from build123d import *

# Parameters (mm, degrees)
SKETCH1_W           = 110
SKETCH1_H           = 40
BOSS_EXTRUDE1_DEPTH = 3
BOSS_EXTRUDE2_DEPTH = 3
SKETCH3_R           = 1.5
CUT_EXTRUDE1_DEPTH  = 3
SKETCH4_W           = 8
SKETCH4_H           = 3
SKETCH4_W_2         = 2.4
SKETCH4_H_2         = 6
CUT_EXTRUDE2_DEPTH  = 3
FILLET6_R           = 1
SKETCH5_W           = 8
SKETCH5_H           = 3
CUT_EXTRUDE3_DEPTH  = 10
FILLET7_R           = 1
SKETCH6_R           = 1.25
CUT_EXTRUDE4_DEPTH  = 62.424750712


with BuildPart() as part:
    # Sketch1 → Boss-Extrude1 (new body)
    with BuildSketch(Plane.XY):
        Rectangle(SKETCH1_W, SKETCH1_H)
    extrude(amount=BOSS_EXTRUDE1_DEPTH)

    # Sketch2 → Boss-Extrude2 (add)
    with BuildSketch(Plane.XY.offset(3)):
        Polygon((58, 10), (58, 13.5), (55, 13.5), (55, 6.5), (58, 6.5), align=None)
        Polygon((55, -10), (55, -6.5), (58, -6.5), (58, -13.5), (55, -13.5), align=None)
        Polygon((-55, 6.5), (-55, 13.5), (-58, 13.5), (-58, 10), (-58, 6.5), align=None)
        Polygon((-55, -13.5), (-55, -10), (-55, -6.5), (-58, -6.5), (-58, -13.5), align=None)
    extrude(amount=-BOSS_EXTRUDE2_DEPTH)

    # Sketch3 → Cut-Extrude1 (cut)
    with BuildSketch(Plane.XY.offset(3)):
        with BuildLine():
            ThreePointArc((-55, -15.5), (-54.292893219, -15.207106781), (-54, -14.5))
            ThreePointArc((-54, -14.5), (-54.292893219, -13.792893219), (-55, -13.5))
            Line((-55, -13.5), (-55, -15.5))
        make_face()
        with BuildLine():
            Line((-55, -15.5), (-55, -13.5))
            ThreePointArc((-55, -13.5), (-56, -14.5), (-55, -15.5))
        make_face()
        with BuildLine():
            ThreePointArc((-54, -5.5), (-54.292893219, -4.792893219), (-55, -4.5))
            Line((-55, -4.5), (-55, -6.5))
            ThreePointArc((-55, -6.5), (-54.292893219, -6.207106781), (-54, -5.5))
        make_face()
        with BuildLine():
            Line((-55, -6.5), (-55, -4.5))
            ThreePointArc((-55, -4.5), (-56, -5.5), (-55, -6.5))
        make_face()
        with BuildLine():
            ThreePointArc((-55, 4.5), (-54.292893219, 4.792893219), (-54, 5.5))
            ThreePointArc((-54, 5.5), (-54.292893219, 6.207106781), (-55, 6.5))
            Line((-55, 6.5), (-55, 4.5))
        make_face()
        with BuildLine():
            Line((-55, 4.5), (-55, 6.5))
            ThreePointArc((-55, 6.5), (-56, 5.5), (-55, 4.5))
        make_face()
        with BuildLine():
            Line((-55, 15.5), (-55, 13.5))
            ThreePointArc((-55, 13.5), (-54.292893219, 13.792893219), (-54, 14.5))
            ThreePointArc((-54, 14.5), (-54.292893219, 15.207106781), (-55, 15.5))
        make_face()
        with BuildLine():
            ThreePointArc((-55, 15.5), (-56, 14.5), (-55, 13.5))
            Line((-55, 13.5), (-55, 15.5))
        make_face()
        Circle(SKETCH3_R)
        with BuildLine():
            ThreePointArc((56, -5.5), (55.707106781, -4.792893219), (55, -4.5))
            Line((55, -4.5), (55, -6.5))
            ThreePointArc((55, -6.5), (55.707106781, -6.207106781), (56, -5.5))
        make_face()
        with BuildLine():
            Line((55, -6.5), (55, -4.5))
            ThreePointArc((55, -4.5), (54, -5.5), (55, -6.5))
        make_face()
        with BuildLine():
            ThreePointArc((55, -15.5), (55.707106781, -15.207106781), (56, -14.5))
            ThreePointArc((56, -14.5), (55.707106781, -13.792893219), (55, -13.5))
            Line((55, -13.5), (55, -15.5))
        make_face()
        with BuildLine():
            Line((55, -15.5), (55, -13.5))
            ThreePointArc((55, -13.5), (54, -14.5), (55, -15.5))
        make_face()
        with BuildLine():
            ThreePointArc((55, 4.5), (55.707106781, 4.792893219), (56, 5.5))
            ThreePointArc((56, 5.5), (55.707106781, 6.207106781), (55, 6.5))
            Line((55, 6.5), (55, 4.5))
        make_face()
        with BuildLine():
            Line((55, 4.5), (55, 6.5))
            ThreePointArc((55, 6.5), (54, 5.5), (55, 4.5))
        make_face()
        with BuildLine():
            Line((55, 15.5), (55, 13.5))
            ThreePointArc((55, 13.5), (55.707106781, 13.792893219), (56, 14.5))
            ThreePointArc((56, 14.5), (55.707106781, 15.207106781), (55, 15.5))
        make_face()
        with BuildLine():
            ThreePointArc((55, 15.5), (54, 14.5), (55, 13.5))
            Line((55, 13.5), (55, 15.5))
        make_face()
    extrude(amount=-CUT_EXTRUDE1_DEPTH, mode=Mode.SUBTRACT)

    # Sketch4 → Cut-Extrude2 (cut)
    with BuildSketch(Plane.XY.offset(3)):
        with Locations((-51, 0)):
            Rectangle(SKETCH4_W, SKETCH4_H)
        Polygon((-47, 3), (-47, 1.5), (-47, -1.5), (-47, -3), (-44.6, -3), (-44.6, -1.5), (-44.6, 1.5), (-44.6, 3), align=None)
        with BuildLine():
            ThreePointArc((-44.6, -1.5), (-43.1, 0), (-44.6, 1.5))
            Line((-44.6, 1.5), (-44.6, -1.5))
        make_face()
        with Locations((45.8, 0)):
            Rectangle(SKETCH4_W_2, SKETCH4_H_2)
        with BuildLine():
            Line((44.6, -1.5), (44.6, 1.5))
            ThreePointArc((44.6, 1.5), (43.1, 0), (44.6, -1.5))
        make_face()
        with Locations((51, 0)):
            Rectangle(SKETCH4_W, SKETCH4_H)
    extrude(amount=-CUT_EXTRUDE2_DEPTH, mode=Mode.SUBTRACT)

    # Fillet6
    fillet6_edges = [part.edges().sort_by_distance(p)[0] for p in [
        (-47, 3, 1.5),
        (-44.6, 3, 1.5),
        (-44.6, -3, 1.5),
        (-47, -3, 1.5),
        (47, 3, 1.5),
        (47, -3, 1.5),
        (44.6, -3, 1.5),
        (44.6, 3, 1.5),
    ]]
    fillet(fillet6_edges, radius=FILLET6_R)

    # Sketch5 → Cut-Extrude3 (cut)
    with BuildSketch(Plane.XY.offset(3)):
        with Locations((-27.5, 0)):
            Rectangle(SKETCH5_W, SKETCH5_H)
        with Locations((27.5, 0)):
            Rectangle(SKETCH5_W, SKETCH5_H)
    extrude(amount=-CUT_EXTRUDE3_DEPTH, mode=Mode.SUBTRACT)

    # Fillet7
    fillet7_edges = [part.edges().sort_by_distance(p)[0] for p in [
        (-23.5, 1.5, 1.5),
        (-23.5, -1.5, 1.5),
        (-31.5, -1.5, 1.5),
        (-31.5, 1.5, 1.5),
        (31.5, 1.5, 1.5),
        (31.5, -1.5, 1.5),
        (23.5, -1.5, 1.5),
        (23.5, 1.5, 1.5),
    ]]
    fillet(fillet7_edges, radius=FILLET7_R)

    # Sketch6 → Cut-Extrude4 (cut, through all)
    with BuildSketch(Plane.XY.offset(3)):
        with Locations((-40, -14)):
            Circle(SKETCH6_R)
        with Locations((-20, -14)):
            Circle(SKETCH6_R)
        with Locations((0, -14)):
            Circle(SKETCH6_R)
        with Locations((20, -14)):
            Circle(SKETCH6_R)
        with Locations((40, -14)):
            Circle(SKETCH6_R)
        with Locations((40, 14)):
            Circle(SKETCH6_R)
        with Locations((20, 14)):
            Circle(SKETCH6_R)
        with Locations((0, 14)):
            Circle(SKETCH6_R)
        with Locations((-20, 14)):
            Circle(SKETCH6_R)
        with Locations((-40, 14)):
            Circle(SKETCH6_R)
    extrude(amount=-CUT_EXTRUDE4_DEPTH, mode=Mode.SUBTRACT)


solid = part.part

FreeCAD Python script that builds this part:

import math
import FreeCAD as App
import Part
import Sketcher
from FreeCAD import Vector
Q = App.Units.Quantity


def edges_at(feature, points):
    """Names of the edges that pass closest to the given points."""
    edges = feature.Shape.Edges
    near = lambda p: min(range(len(edges)), key=lambda i: edges[i].distToShape(Part.Vertex(*p))[0])
    return sorted({f"Edge{near(p) + 1}" for p in points})

doc = App.newDocument("Part")
params = doc.addObject("Spreadsheet::Sheet", "Params")
for row, (alias, value) in enumerate([
    ("sketch1_width", "110 mm"),
    ("sketch1_height", "40 mm"),
    ("pad1_length", "3 mm"),
    ("sketch2_width", "3 mm"),
    ("sketch2_height", "7 mm"),
    ("pad2_length", "3 mm"),
    ("sketch3_diameter", "3 mm"),
    ("sketch3_radius", "1 mm"),
    ("pocket1_length", "3 mm"),
    ("sketch4_radius", "1.5 mm"),
    ("sketch4_width", "8 mm"),
    ("sketch4_width2", "2.4 mm"),
    ("sketch4_height", "1.5 mm"),
    ("pocket2_length", "3 mm"),
    ("fillet_radius", "1 mm"),
    ("sketch5_width", "8 mm"),
    ("sketch5_height", "3 mm"),
    ("pocket3_length", "10 mm"),
    ("fillet2_radius", "1 mm"),
    ("sketch6_diameter", "2.5 mm"),
], start=1):
    params.set(f"A{row}", alias)
    params.set(f"B{row}", "=" + value)
    params.setAlias(f"B{row}", alias)

body = doc.addObject("PartDesign::Body", "Body")

sketch1 = body.newObject("Sketcher::SketchObject", "Sketch")
sketch1.AttachmentSupport = (doc.getObject("XY_Plane"), [""])
sketch1.MapMode = "FlatFace"
sketch1.addGeometry(Part.LineSegment(Vector(-55, 20, 0), Vector(-55, -20, 0)), False)
sketch1.addGeometry(Part.LineSegment(Vector(-55, -20, 0), Vector(55, -20, 0)), False)
sketch1.addGeometry(Part.LineSegment(Vector(55, -20, 0), Vector(55, 20, 0)), False)
sketch1.addGeometry(Part.LineSegment(Vector(55, 20, 0), Vector(-55, 20, 0)), False)
sketch1.addConstraint(Sketcher.Constraint("Coincident", 0, 2, 1, 1))
sketch1.addConstraint(Sketcher.Constraint("Coincident", 1, 2, 2, 1))
sketch1.addConstraint(Sketcher.Constraint("Coincident", 2, 2, 3, 1))
sketch1.addConstraint(Sketcher.Constraint("Coincident", 3, 2, 0, 1))
sketch1.addConstraint(Sketcher.Constraint("Vertical", 0))
sketch1.addConstraint(Sketcher.Constraint("Horizontal", 1))
sketch1.addConstraint(Sketcher.Constraint("Vertical", 2))
sketch1.addConstraint(Sketcher.Constraint("Horizontal", 3))
sketch1.addConstraint(Sketcher.Constraint("Symmetric", 0, 2, 2, 2, -1, 1))
sketch1.addConstraint(Sketcher.Constraint("DistanceX", 1, 1, 1, 2, Q("110 mm")))
sketch1.addConstraint(Sketcher.Constraint("DistanceY", 0, 2, 0, 1, Q("40 mm")))
sketch1.setExpression("Constraints[9]", "Params.sketch1_width")
sketch1.setExpression("Constraints[10]", "Params.sketch1_height")
pad1 = body.newObject("PartDesign::Pad", "Pad")
pad1.Profile = sketch1
pad1.setExpression("Length", "Params.pad1_length")

sketch2 = body.newObject("Sketcher::SketchObject", "Sketch001")
sketch2.AttachmentSupport = (doc.getObject("XY_Plane"), [""])
sketch2.MapMode = "FlatFace"
sketch2.AttachmentOffset = App.Placement(Vector(0, 0, 3), App.Rotation())
sketch2.addGeometry(Part.LineSegment(Vector(58, 13.5, 0), Vector(55, 13.5, 0)), False)
sketch2.addGeometry(Part.LineSegment(Vector(55, 13.5, 0), Vector(55, 6.5, 0)), False)
sketch2.addGeometry(Part.LineSegment(Vector(55, 6.5, 0), Vector(58, 6.5, 0)), False)
sketch2.addGeometry(Part.LineSegment(Vector(58, 6.5, 0), Vector(58, 13.5, 0)), False)
sketch2.addGeometry(Part.LineSegment(Vector(55, -6.5, 0), Vector(55, -13.5, 0)), False)
sketch2.addGeometry(Part.LineSegment(Vector(55, -13.5, 0), Vector(58, -13.5, 0)), False)
sketch2.addGeometry(Part.LineSegment(Vector(58, -13.5, 0), Vector(58, -6.5, 0)), False)
sketch2.addGeometry(Part.LineSegment(Vector(58, -6.5, 0), Vector(55, -6.5, 0)), False)
sketch2.addGeometry(Part.LineSegment(Vector(-55, 6.5, 0), Vector(-55, 13.5, 0)), False)
sketch2.addGeometry(Part.LineSegment(Vector(-55, 13.5, 0), Vector(-58, 13.5, 0)), False)
sketch2.addGeometry(Part.LineSegment(Vector(-58, 13.5, 0), Vector(-58, 6.5, 0)), False)
sketch2.addGeometry(Part.LineSegment(Vector(-58, 6.5, 0), Vector(-55, 6.5, 0)), False)
sketch2.addGeometry(Part.LineSegment(Vector(-55, -13.5, 0), Vector(-55, -6.5, 0)), False)
sketch2.addGeometry(Part.LineSegment(Vector(-55, -6.5, 0), Vector(-58, -6.5, 0)), False)
sketch2.addGeometry(Part.LineSegment(Vector(-58, -6.5, 0), Vector(-58, -13.5, 0)), False)
sketch2.addGeometry(Part.LineSegment(Vector(-58, -13.5, 0), Vector(-55, -13.5, 0)), False)
sketch2.addConstraint(Sketcher.Constraint("Coincident", 0, 2, 1, 1))
sketch2.addConstraint(Sketcher.Constraint("Coincident", 1, 2, 2, 1))
sketch2.addConstraint(Sketcher.Constraint("Coincident", 2, 2, 3, 1))
sketch2.addConstraint(Sketcher.Constraint("Coincident", 3, 2, 0, 1))
sketch2.addConstraint(Sketcher.Constraint("Coincident", 4, 2, 5, 1))
sketch2.addConstraint(Sketcher.Constraint("Coincident", 5, 2, 6, 1))
sketch2.addConstraint(Sketcher.Constraint("Coincident", 6, 2, 7, 1))
sketch2.addConstraint(Sketcher.Constraint("Coincident", 7, 2, 4, 1))
sketch2.addConstraint(Sketcher.Constraint("Coincident", 8, 2, 9, 1))
sketch2.addConstraint(Sketcher.Constraint("Coincident", 9, 2, 10, 1))
sketch2.addConstraint(Sketcher.Constraint("Coincident", 10, 2, 11, 1))
sketch2.addConstraint(Sketcher.Constraint("Coincident", 11, 2, 8, 1))
sketch2.addConstraint(Sketcher.Constraint("Coincident", 12, 2, 13, 1))
sketch2.addConstraint(Sketcher.Constraint("Coincident", 13, 2, 14, 1))
sketch2.addConstraint(Sketcher.Constraint("Coincident", 14, 2, 15, 1))
sketch2.addConstraint(Sketcher.Constraint("Coincident", 15, 2, 12, 1))
sketch2.addConstraint(Sketcher.Constraint("Horizontal", 0))
sketch2.addConstraint(Sketcher.Constraint("Vertical", 1))
sketch2.addConstraint(Sketcher.Constraint("Horizontal", 2))
sketch2.addConstraint(Sketcher.Constraint("Vertical", 3))
sketch2.addConstraint(Sketcher.Constraint("Vertical", 4))
sketch2.addConstraint(Sketcher.Constraint("Horizontal", 5))
sketch2.addConstraint(Sketcher.Constraint("Vertical", 6))
sketch2.addConstraint(Sketcher.Constraint("Horizontal", 7))
sketch2.addConstraint(Sketcher.Constraint("Vertical", 8))
sketch2.addConstraint(Sketcher.Constraint("Horizontal", 9))
sketch2.addConstraint(Sketcher.Constraint("Vertical", 10))
sketch2.addConstraint(Sketcher.Constraint("Horizontal", 11))
sketch2.addConstraint(Sketcher.Constraint("Vertical", 12))
sketch2.addConstraint(Sketcher.Constraint("Horizontal", 13))
sketch2.addConstraint(Sketcher.Constraint("Vertical", 14))
sketch2.addConstraint(Sketcher.Constraint("Horizontal", 15))
sketch2.addConstraint(Sketcher.Constraint("Symmetric", 4, 2, 8, 2, -1, 1))
sketch2.addConstraint(Sketcher.Constraint("Symmetric", 6, 2, 10, 2, -1, 1))
sketch2.addConstraint(Sketcher.Constraint("Symmetric", 1, 2, 12, 2, -1, 1))
sketch2.addConstraint(Sketcher.Constraint("Symmetric", 3, 2, 14, 2, -1, 1))
sketch2.addConstraint(Sketcher.Constraint("Symmetric", 0, 2, 8, 2, -2))
sketch2.addConstraint(Sketcher.Constraint("Symmetric", 2, 2, 10, 2, -2))
sketch2.addConstraint(Sketcher.Constraint("DistanceX", 0, 2, 0, 1, Q("3 mm")))
sketch2.addConstraint(Sketcher.Constraint("DistanceY", 1, 2, 1, 1, Q("7 mm")))
sketch2.addConstraint(Sketcher.Constraint("DistanceX", -1, 1, 0, 2, Q("55 mm")))
sketch2.addConstraint(Sketcher.Constraint("DistanceY", 4, 2, 1, 2, Q("20 mm")))
sketch2.setExpression("Constraints[38]", "Params.sketch2_width")
sketch2.setExpression("Constraints[39]", "Params.sketch2_height")
pad2 = body.newObject("PartDesign::Pad", "Pad001")
pad2.Profile = sketch2
pad2.setExpression("Length", "Params.pad2_length")
pad2.Reversed = True

sketch3 = body.newObject("Sketcher::SketchObject", "Sketch002")
sketch3.AttachmentSupport = (doc.getObject("XY_Plane"), [""])
sketch3.MapMode = "FlatFace"
sketch3.AttachmentOffset = App.Placement(Vector(0, 0, 3), App.Rotation())
sketch3.addGeometry(Part.ArcOfCircle(Part.Circle(Vector(-55, -14.5, 0), Vector(0, 0, 1), 1), math.radians(-90), math.radians(0)), False)
sketch3.addGeometry(Part.ArcOfCircle(Part.Circle(Vector(-55, -14.5, 0), Vector(0, 0, 1), 1), math.radians(0), math.radians(90)), False)
sketch3.addGeometry(Part.ArcOfCircle(Part.Circle(Vector(-55, -14.5, 0), Vector(0, 0, 1), 1), math.radians(90), math.radians(270)), False)
sketch3.addGeometry(Part.ArcOfCircle(Part.Circle(Vector(-55, -5.5, 0), Vector(0, 0, 1), 1), math.radians(0), math.radians(90)), False)
sketch3.addGeometry(Part.ArcOfCircle(Part.Circle(Vector(-55, -5.5, 0), Vector(0, 0, 1), 1), math.radians(90), math.radians(270)), False)
sketch3.addGeometry(Part.ArcOfCircle(Part.Circle(Vector(-55, -5.5, 0), Vector(0, 0, 1), 1), math.radians(-90), math.radians(0)), False)
sketch3.addGeometry(Part.ArcOfCircle(Part.Circle(Vector(-55, 5.5, 0), Vector(0, 0, 1), 1), math.radians(-90), math.radians(0)), False)
sketch3.addGeometry(Part.ArcOfCircle(Part.Circle(Vector(-55, 5.5, 0), Vector(0, 0, 1), 1), math.radians(0), math.radians(90)), False)
sketch3.addGeometry(Part.ArcOfCircle(Part.Circle(Vector(-55, 5.5, 0), Vector(0, 0, 1), 1), math.radians(90), math.radians(270)), False)
sketch3.addGeometry(Part.ArcOfCircle(Part.Circle(Vector(-55, 14.5, 0), Vector(0, 0, 1), 1), math.radians(-90), math.radians(0)), False)
sketch3.addGeometry(Part.ArcOfCircle(Part.Circle(Vector(-55, 14.5, 0), Vector(0, 0, 1), 1), math.radians(0), math.radians(90)), False)
sketch3.addGeometry(Part.ArcOfCircle(Part.Circle(Vector(-55, 14.5, 0), Vector(0, 0, 1), 1), math.radians(90), math.radians(270)), False)
sketch3.addGeometry(Part.Circle(Vector(0, 0, 0), Vector(0, 0, 1), 1.5), False)
sketch3.addGeometry(Part.ArcOfCircle(Part.Circle(Vector(55, -5.5, 0), Vector(0, 0, 1), 1), math.radians(0), math.radians(90)), False)
sketch3.addGeometry(Part.ArcOfCircle(Part.Circle(Vector(55, -5.5, 0), Vector(0, 0, 1), 1), math.radians(90), math.radians(270)), False)
sketch3.addGeometry(Part.ArcOfCircle(Part.Circle(Vector(55, -5.5, 0), Vector(0, 0, 1), 1), math.radians(-90), math.radians(0)), False)
sketch3.addGeometry(Part.ArcOfCircle(Part.Circle(Vector(55, -14.5, 0), Vector(0, 0, 1), 1), math.radians(-90), math.radians(0)), False)
sketch3.addGeometry(Part.ArcOfCircle(Part.Circle(Vector(55, -14.5, 0), Vector(0, 0, 1), 1), math.radians(0), math.radians(90)), False)
sketch3.addGeometry(Part.ArcOfCircle(Part.Circle(Vector(55, -14.5, 0), Vector(0, 0, 1), 1), math.radians(90), math.radians(270)), False)
sketch3.addGeometry(Part.ArcOfCircle(Part.Circle(Vector(55, 5.5, 0), Vector(0, 0, 1), 1), math.radians(-90), math.radians(0)), False)
sketch3.addGeometry(Part.ArcOfCircle(Part.Circle(Vector(55, 5.5, 0), Vector(0, 0, 1), 1), math.radians(0), math.radians(90)), False)
sketch3.addGeometry(Part.ArcOfCircle(Part.Circle(Vector(55, 5.5, 0), Vector(0, 0, 1), 1), math.radians(90), math.radians(270)), False)
sketch3.addGeometry(Part.ArcOfCircle(Part.Circle(Vector(55, 14.5, 0), Vector(0, 0, 1), 1), math.radians(-90), math.radians(0)), False)
sketch3.addGeometry(Part.ArcOfCircle(Part.Circle(Vector(55, 14.5, 0), Vector(0, 0, 1), 1), math.radians(0), math.radians(90)), False)
sketch3.addGeometry(Part.ArcOfCircle(Part.Circle(Vector(55, 14.5, 0), Vector(0, 0, 1), 1), math.radians(90), math.radians(270)), False)
sketch3.addConstraint(Sketcher.Constraint("Tangent", 0, 2, 1, 1))
sketch3.addConstraint(Sketcher.Constraint("Tangent", 1, 2, 2, 1))
sketch3.addConstraint(Sketcher.Constraint("Tangent", 2, 2, 0, 1))
sketch3.addConstraint(Sketcher.Constraint("Tangent", 3, 2, 4, 1))
sketch3.addConstraint(Sketcher.Constraint("Tangent", 4, 2, 5, 1))
sketch3.addConstraint(Sketcher.Constraint("Tangent", 5, 2, 3, 1))
sketch3.addConstraint(Sketcher.Constraint("Tangent", 6, 2, 7, 1))
sketch3.addConstraint(Sketcher.Constraint("Tangent", 7, 2, 8, 1))
sketch3.addConstraint(Sketcher.Constraint("Tangent", 8, 2, 6, 1))
sketch3.addConstraint(Sketcher.Constraint("Tangent", 9, 2, 10, 1))
sketch3.addConstraint(Sketcher.Constraint("Tangent", 10, 2, 11, 1))
sketch3.addConstraint(Sketcher.Constraint("Tangent", 11, 2, 9, 1))
sketch3.addConstraint(Sketcher.Constraint("Tangent", 13, 2, 14, 1))
sketch3.addConstraint(Sketcher.Constraint("Tangent", 14, 2, 15, 1))
sketch3.addConstraint(Sketcher.Constraint("Tangent", 15, 2, 13, 1))
sketch3.addConstraint(Sketcher.Constraint("Tangent", 16, 2, 17, 1))
sketch3.addConstraint(Sketcher.Constraint("Tangent", 17, 2, 18, 1))
sketch3.addConstraint(Sketcher.Constraint("Tangent", 18, 2, 16, 1))
sketch3.addConstraint(Sketcher.Constraint("Tangent", 19, 2, 20, 1))
sketch3.addConstraint(Sketcher.Constraint("Tangent", 20, 2, 21, 1))
sketch3.addConstraint(Sketcher.Constraint("Tangent", 21, 2, 19, 1))
sketch3.addConstraint(Sketcher.Constraint("Tangent", 22, 2, 23, 1))
sketch3.addConstraint(Sketcher.Constraint("Tangent", 23, 2, 24, 1))
sketch3.addConstraint(Sketcher.Constraint("Tangent", 24, 2, 22, 1))
sketch3.addConstraint(Sketcher.Constraint("Coincident", 12, 3, -1, 1))
sketch3.addConstraint(Sketcher.Constraint("Equal", 2, 3))
sketch3.addConstraint(Sketcher.Constraint("Equal", 5, 6))
sketch3.addConstraint(Sketcher.Constraint("Equal", 8, 9))
sketch3.addConstraint(Sketcher.Constraint("Equal", 11, 13))
sketch3.addConstraint(Sketcher.Constraint("Equal", 15, 16))
sketch3.addConstraint(Sketcher.Constraint("Equal", 18, 19))
sketch3.addConstraint(Sketcher.Constraint("Equal", 21, 22))
sketch3.addConstraint(Sketcher.Constraint("Symmetric", 6, 3, 13, 3, -1, 1))
sketch3.addConstraint(Sketcher.Constraint("Symmetric", 9, 3, 16, 3, -1, 1))
sketch3.addConstraint(Sketcher.Constraint("Symmetric", 3, 3, 19, 3, -1, 1))
sketch3.addConstraint(Sketcher.Constraint("Symmetric", 0, 3, 22, 3, -1, 1))
sketch3.addConstraint(Sketcher.Constraint("Symmetric", 3, 3, 13, 3, -2))
sketch3.addConstraint(Sketcher.Constraint("Symmetric", 0, 3, 16, 3, -2))
sketch3.addConstraint(Sketcher.Constraint("Horizontal", 18, 3, 0, 2))
sketch3.addConstraint(Sketcher.Constraint("Horizontal", 15, 3, 5, 2))
sketch3.addConstraint(Sketcher.Constraint("Horizontal", 21, 3, 6, 2))
sketch3.addConstraint(Sketcher.Constraint("Horizontal", 24, 3, 9, 2))
sketch3.addConstraint(Sketcher.Constraint("Horizontal", 5, 2, 15, 2))
sketch3.addConstraint(Sketcher.Constraint("Horizontal", 0, 2, 16, 2))
sketch3.addConstraint(Sketcher.Constraint("Horizontal", 6, 2, 19, 2))
sketch3.addConstraint(Sketcher.Constraint("Horizontal", 9, 2, 22, 2))
sketch3.addConstraint(Sketcher.Constraint("Vertical", 2, 3, 3, 3))
sketch3.addConstraint(Sketcher.Constraint("Vertical", 11, 3, 1, 2))
sketch3.addConstraint(Sketcher.Constraint("Vertical", 1, 2, 2, 2))
sketch3.addConstraint(Sketcher.Constraint("Vertical", 2, 2, 3, 2))
sketch3.addConstraint(Sketcher.Constraint("Vertical", 3, 2, 4, 2))
sketch3.addConstraint(Sketcher.Constraint("Vertical", 4, 2, 7, 2))
sketch3.addConstraint(Sketcher.Constraint("Vertical", 7, 2, 8, 2))
sketch3.addConstraint(Sketcher.Constraint("Vertical", 8, 2, 10, 2))
sketch3.addConstraint(Sketcher.Constraint("Vertical", 10, 2, 11, 2))
sketch3.addConstraint(Sketcher.Constraint("Vertical", 24, 3, 13, 2))
sketch3.addConstraint(Sketcher.Constraint("Vertical", 13, 2, 14, 2))
sketch3.addConstraint(Sketcher.Constraint("Vertical", 14, 2, 17, 2))
sketch3.addConstraint(Sketcher.Constraint("Vertical", 17, 2, 18, 2))
sketch3.addConstraint(Sketcher.Constraint("Vertical", 18, 2, 20, 2))
sketch3.addConstraint(Sketcher.Constraint("Vertical", 20, 2, 21, 2))
sketch3.addConstraint(Sketcher.Constraint("Vertical", 21, 2, 23, 2))
sketch3.addConstraint(Sketcher.Constraint("Vertical", 23, 2, 24, 2))
sketch3.addConstraint(Sketcher.Constraint("Diameter", 12, Q("3 mm")))
sketch3.addConstraint(Sketcher.Constraint("Radius", 0, Q("1 mm")))
sketch3.addConstraint(Sketcher.Constraint("DistanceX", 0, 3, -1, 1, Q("55 mm")))
sketch3.addConstraint(Sketcher.Constraint("DistanceY", 0, 3, 3, 3, Q("9 mm")))
sketch3.addConstraint(Sketcher.Constraint("DistanceY", 5, 3, 6, 3, Q("11 mm")))
sketch3.setExpression("Constraints[63]", "Params.sketch3_diameter")
sketch3.setExpression("Constraints[64]", "Params.sketch3_radius")
pocket1 = body.newObject("PartDesign::Pocket", "Pocket")
pocket1.Profile = sketch3
pocket1.setExpression("Length", "Params.pocket1_length")

sketch4 = body.newObject("Sketcher::SketchObject", "Sketch003")
sketch4.AttachmentSupport = (doc.getObject("XY_Plane"), [""])
sketch4.MapMode = "FlatFace"
sketch4.AttachmentOffset = App.Placement(Vector(0, 0, 3), App.Rotation())
sketch4.addGeometry(Part.LineSegment(Vector(-55, 1.5, 0), Vector(-55, -1.5, 0)), False)
sketch4.addGeometry(Part.LineSegment(Vector(-55, -1.5, 0), Vector(-47, -1.5, 0)), False)
sketch4.addGeometry(Part.LineSegment(Vector(-47, -1.5, 0), Vector(-47, -3, 0)), False)
sketch4.addGeometry(Part.LineSegment(Vector(-47, -3, 0), Vector(-44.6, -3, 0)), False)
sketch4.addGeometry(Part.LineSegment(Vector(-44.6, -3, 0), Vector(-44.6, -1.5, 0)), False)
sketch4.addGeometry(Part.ArcOfCircle(Part.Circle(Vector(-44.6, 0, 0), Vector(0, 0, 1), 1.5), math.radians(-90), math.radians(90)), False)
sketch4.addGeometry(Part.LineSegment(Vector(-44.6, 1.5, 0), Vector(-44.6, 3, 0)), False)
sketch4.addGeometry(Part.LineSegment(Vector(-44.6, 3, 0), Vector(-47, 3, 0)), False)
sketch4.addGeometry(Part.LineSegment(Vector(-47, 3, 0), Vector(-47, 1.5, 0)), False)
sketch4.addGeometry(Part.LineSegment(Vector(-47, 1.5, 0), Vector(-55, 1.5, 0)), False)
sketch4.addGeometry(Part.LineSegment(Vector(44.6, -1.5, 0), Vector(44.6, -3, 0)), False)
sketch4.addGeometry(Part.LineSegment(Vector(44.6, -3, 0), Vector(47, -3, 0)), False)
sketch4.addGeometry(Part.LineSegment(Vector(47, -3, 0), Vector(47, -1.5, 0)), False)
sketch4.addGeometry(Part.LineSegment(Vector(47, -1.5, 0), Vector(55, -1.5, 0)), False)
sketch4.addGeometry(Part.LineSegment(Vector(55, -1.5, 0), Vector(55, 1.5, 0)), False)
sketch4.addGeometry(Part.LineSegment(Vector(55, 1.5, 0), Vector(47, 1.5, 0)), False)
sketch4.addGeometry(Part.LineSegment(Vector(47, 1.5, 0), Vector(47, 3, 0)), False)
sketch4.addGeometry(Part.LineSegment(Vector(47, 3, 0), Vector(44.6, 3, 0)), False)
sketch4.addGeometry(Part.LineSegment(Vector(44.6, 3, 0), Vector(44.6, 1.5, 0)), False)
sketch4.addGeometry(Part.ArcOfCircle(Part.Circle(Vector(44.6, 0, 0), Vector(0, 0, 1), 1.5), math.radians(90), math.radians(270)), False)
sketch4.addConstraint(Sketcher.Constraint("Coincident", 0, 2, 1, 1))
sketch4.addConstraint(Sketcher.Constraint("Coincident", 1, 2, 2, 1))
sketch4.addConstraint(Sketcher.Constraint("Coincident", 2, 2, 3, 1))
sketch4.addConstraint(Sketcher.Constraint("Coincident", 3, 2, 4, 1))
sketch4.addConstraint(Sketcher.Constraint("Coincident", 4, 2, 5, 1))
sketch4.addConstraint(Sketcher.Constraint("Coincident", 5, 2, 6, 1))
sketch4.addConstraint(Sketcher.Constraint("Coincident", 6, 2, 7, 1))
sketch4.addConstraint(Sketcher.Constraint("Coincident", 7, 2, 8, 1))
sketch4.addConstraint(Sketcher.Constraint("Coincident", 8, 2, 9, 1))
sketch4.addConstraint(Sketcher.Constraint("Coincident", 9, 2, 0, 1))
sketch4.addConstraint(Sketcher.Constraint("Coincident", 10, 2, 11, 1))
sketch4.addConstraint(Sketcher.Constraint("Coincident", 11, 2, 12, 1))
sketch4.addConstraint(Sketcher.Constraint("Coincident", 12, 2, 13, 1))
sketch4.addConstraint(Sketcher.Constraint("Coincident", 13, 2, 14, 1))
sketch4.addConstraint(Sketcher.Constraint("Coincident", 14, 2, 15, 1))
sketch4.addConstraint(Sketcher.Constraint("Coincident", 15, 2, 16, 1))
sketch4.addConstraint(Sketcher.Constraint("Coincident", 16, 2, 17, 1))
sketch4.addConstraint(Sketcher.Constraint("Coincident", 17, 2, 18, 1))
sketch4.addConstraint(Sketcher.Constraint("Coincident", 18, 2, 19, 1))
sketch4.addConstraint(Sketcher.Constraint("Coincident", 19, 2, 10, 1))
sketch4.addConstraint(Sketcher.Constraint("Vertical", 0))
sketch4.addConstraint(Sketcher.Constraint("Horizontal", 1))
sketch4.addConstraint(Sketcher.Constraint("Vertical", 2))
sketch4.addConstraint(Sketcher.Constraint("Horizontal", 3))
sketch4.addConstraint(Sketcher.Constraint("Vertical", 4))
sketch4.addConstraint(Sketcher.Constraint("Vertical", 6))
sketch4.addConstraint(Sketcher.Constraint("Horizontal", 7))
sketch4.addConstraint(Sketcher.Constraint("Vertical", 8))
sketch4.addConstraint(Sketcher.Constraint("Horizontal", 9))
sketch4.addConstraint(Sketcher.Constraint("Vertical", 10))
sketch4.addConstraint(Sketcher.Constraint("Horizontal", 11))
sketch4.addConstraint(Sketcher.Constraint("Vertical", 12))
sketch4.addConstraint(Sketcher.Constraint("Horizontal", 13))
sketch4.addConstraint(Sketcher.Constraint("Vertical", 14))
sketch4.addConstraint(Sketcher.Constraint("Horizontal", 15))
sketch4.addConstraint(Sketcher.Constraint("Vertical", 16))
sketch4.addConstraint(Sketcher.Constraint("Horizontal", 17))
sketch4.addConstraint(Sketcher.Constraint("Vertical", 18))
sketch4.addConstraint(Sketcher.Constraint("Equal", 5, 19))
sketch4.addConstraint(Sketcher.Constraint("Symmetric", 5, 3, 19, 3, -1, 1))
sketch4.addConstraint(Sketcher.Constraint("Symmetric", 6, 2, 10, 2, -1, 1))
sketch4.addConstraint(Sketcher.Constraint("Symmetric", 8, 2, 12, 2, -1, 1))
sketch4.addConstraint(Sketcher.Constraint("Symmetric", 0, 2, 14, 2, -1, 1))
sketch4.addConstraint(Sketcher.Constraint("Symmetric", 2, 2, 16, 2, -1, 1))
sketch4.addConstraint(Sketcher.Constraint("Symmetric", 3, 2, 10, 2, -2))
sketch4.addConstraint(Sketcher.Constraint("Symmetric", 1, 2, 12, 2, -2))
sketch4.addConstraint(Sketcher.Constraint("Symmetric", 5, 2, 18, 2, -2))
sketch4.addConstraint(Sketcher.Constraint("Horizontal", 1, 2, 4, 2))
sketch4.addConstraint(Sketcher.Constraint("Vertical", 5, 3, 3, 2))
sketch4.addConstraint(Sketcher.Constraint("Radius", 5, Q("1.5 mm")))
sketch4.addConstraint(Sketcher.Constraint("DistanceX", 1, 1, 1, 2, Q("8 mm")))
sketch4.addConstraint(Sketcher.Constraint("DistanceX", 3, 1, 3, 2, Q("2.4 mm")))
sketch4.addConstraint(Sketcher.Constraint("DistanceY", 2, 2, 2, 1, Q("1.5 mm")))
sketch4.addConstraint(Sketcher.Constraint("DistanceX", 0, 2, -1, 1, Q("55 mm")))
sketch4.setExpression("Constraints[49]", "Params.sketch4_radius")
sketch4.setExpression("Constraints[50]", "Params.sketch4_width")
sketch4.setExpression("Constraints[51]", "Params.sketch4_width2")
sketch4.setExpression("Constraints[52]", "Params.sketch4_height")
pocket2 = body.newObject("PartDesign::Pocket", "Pocket001")
pocket2.Profile = sketch4
pocket2.setExpression("Length", "Params.pocket2_length")
doc.recompute()

fillet = body.newObject("PartDesign::Fillet", "Fillet")
fillet.Base = (pocket2, edges_at(pocket2, [
    (-47, 3, 1.5),
    (-44.6, 3, 1.5),
    (-44.6, -3, 1.5),
    (-47, -3, 1.5),
    (47, 3, 1.5),
    (47, -3, 1.5),
    (44.6, -3, 1.5),
    (44.6, 3, 1.5),
]))
fillet.setExpression("Radius", "Params.fillet_radius")

sketch5 = body.newObject("Sketcher::SketchObject", "Sketch004")
sketch5.AttachmentSupport = (doc.getObject("XY_Plane"), [""])
sketch5.MapMode = "FlatFace"
sketch5.AttachmentOffset = App.Placement(Vector(0, 0, 3), App.Rotation())
sketch5.addGeometry(Part.LineSegment(Vector(-31.5, 1.5, 0), Vector(-31.5, -1.5, 0)), False)
sketch5.addGeometry(Part.LineSegment(Vector(-31.5, -1.5, 0), Vector(-23.5, -1.5, 0)), False)
sketch5.addGeometry(Part.LineSegment(Vector(-23.5, -1.5, 0), Vector(-23.5, 1.5, 0)), False)
sketch5.addGeometry(Part.LineSegment(Vector(-23.5, 1.5, 0), Vector(-31.5, 1.5, 0)), False)
sketch5.addGeometry(Part.LineSegment(Vector(23.5, 1.5, 0), Vector(23.5, -1.5, 0)), False)
sketch5.addGeometry(Part.LineSegment(Vector(23.5, -1.5, 0), Vector(31.5, -1.5, 0)), False)
sketch5.addGeometry(Part.LineSegment(Vector(31.5, -1.5, 0), Vector(31.5, 1.5, 0)), False)
sketch5.addGeometry(Part.LineSegment(Vector(31.5, 1.5, 0), Vector(23.5, 1.5, 0)), False)
sketch5.addConstraint(Sketcher.Constraint("Coincident", 0, 2, 1, 1))
sketch5.addConstraint(Sketcher.Constraint("Coincident", 1, 2, 2, 1))
sketch5.addConstraint(Sketcher.Constraint("Coincident", 2, 2, 3, 1))
sketch5.addConstraint(Sketcher.Constraint("Coincident", 3, 2, 0, 1))
sketch5.addConstraint(Sketcher.Constraint("Coincident", 4, 2, 5, 1))
sketch5.addConstraint(Sketcher.Constraint("Coincident", 5, 2, 6, 1))
sketch5.addConstraint(Sketcher.Constraint("Coincident", 6, 2, 7, 1))
sketch5.addConstraint(Sketcher.Constraint("Coincident", 7, 2, 4, 1))
sketch5.addConstraint(Sketcher.Constraint("Vertical", 0))
sketch5.addConstraint(Sketcher.Constraint("Horizontal", 1))
sketch5.addConstraint(Sketcher.Constraint("Vertical", 2))
sketch5.addConstraint(Sketcher.Constraint("Horizontal", 3))
sketch5.addConstraint(Sketcher.Constraint("Vertical", 4))
sketch5.addConstraint(Sketcher.Constraint("Horizontal", 5))
sketch5.addConstraint(Sketcher.Constraint("Vertical", 6))
sketch5.addConstraint(Sketcher.Constraint("Horizontal", 7))
sketch5.addConstraint(Sketcher.Constraint("Symmetric", 2, 2, 4, 2, -1, 1))
sketch5.addConstraint(Sketcher.Constraint("Symmetric", 0, 2, 6, 2, -1, 1))
sketch5.addConstraint(Sketcher.Constraint("Horizontal", 1, 2, 4, 2))
sketch5.addConstraint(Sketcher.Constraint("DistanceX", 1, 1, 1, 2, Q("8 mm")))
sketch5.addConstraint(Sketcher.Constraint("DistanceY", 0, 2, 0, 1, Q("3 mm")))
sketch5.addConstraint(Sketcher.Constraint("DistanceX", 1, 2, 4, 2, Q("47 mm")))
sketch5.setExpression("Constraints[19]", "Params.sketch5_width")
sketch5.setExpression("Constraints[20]", "Params.sketch5_height")
pocket3 = body.newObject("PartDesign::Pocket", "Pocket002")
pocket3.Profile = sketch5
pocket3.setExpression("Length", "Params.pocket3_length")
doc.recompute()

fillet2 = body.newObject("PartDesign::Fillet", "Fillet001")
fillet2.Base = (pocket3, edges_at(pocket3, [
    (-23.5, 1.5, 1.5),
    (-23.5, -1.5, 1.5),
    (-31.5, -1.5, 1.5),
    (-31.5, 1.5, 1.5),
    (31.5, 1.5, 1.5),
    (31.5, -1.5, 1.5),
    (23.5, -1.5, 1.5),
    (23.5, 1.5, 1.5),
]))
fillet2.setExpression("Radius", "Params.fillet2_radius")

sketch6 = body.newObject("Sketcher::SketchObject", "Sketch005")
sketch6.AttachmentSupport = (doc.getObject("XY_Plane"), [""])
sketch6.MapMode = "FlatFace"
sketch6.AttachmentOffset = App.Placement(Vector(0, 0, 3), App.Rotation())
sketch6.addGeometry(Part.Circle(Vector(-40, -14, 0), Vector(0, 0, 1), 1.2), False)
sketch6.addGeometry(Part.Circle(Vector(-20, -14, 0), Vector(0, 0, 1), 1.2), False)
sketch6.addGeometry(Part.Circle(Vector(0, -14, 0), Vector(0, 0, 1), 1.2), False)
sketch6.addGeometry(Part.Circle(Vector(20, -14, 0), Vector(0, 0, 1), 1.2), False)
sketch6.addGeometry(Part.Circle(Vector(40, -14, 0), Vector(0, 0, 1), 1.2), False)
sketch6.addGeometry(Part.Circle(Vector(40, 14, 0), Vector(0, 0, 1), 1.2), False)
sketch6.addGeometry(Part.Circle(Vector(20, 14, 0), Vector(0, 0, 1), 1.2), False)
sketch6.addGeometry(Part.Circle(Vector(0, 14, 0), Vector(0, 0, 1), 1.2), False)
sketch6.addGeometry(Part.Circle(Vector(-20, 14, 0), Vector(0, 0, 1), 1.2), False)
sketch6.addGeometry(Part.Circle(Vector(-40, 14, 0), Vector(0, 0, 1), 1.2), False)
sketch6.addConstraint(Sketcher.Constraint("Equal", 0, 1))
sketch6.addConstraint(Sketcher.Constraint("Equal", 1, 2))
sketch6.addConstraint(Sketcher.Constraint("Equal", 2, 3))
sketch6.addConstraint(Sketcher.Constraint("Equal", 3, 4))
sketch6.addConstraint(Sketcher.Constraint("Equal", 4, 5))
sketch6.addConstraint(Sketcher.Constraint("Equal", 5, 6))
sketch6.addConstraint(Sketcher.Constraint("Equal", 6, 7))
sketch6.addConstraint(Sketcher.Constraint("Equal", 7, 8))
sketch6.addConstraint(Sketcher.Constraint("Equal", 8, 9))
sketch6.addConstraint(Sketcher.Constraint("Symmetric", 0, 3, 5, 3, -1, 1))
sketch6.addConstraint(Sketcher.Constraint("Symmetric", 1, 3, 6, 3, -1, 1))
sketch6.addConstraint(Sketcher.Constraint("Symmetric", 2, 3, 7, 3, -1, 1))
sketch6.addConstraint(Sketcher.Constraint("Symmetric", 3, 3, 8, 3, -1, 1))
sketch6.addConstraint(Sketcher.Constraint("Symmetric", 4, 3, 9, 3, -1, 1))
sketch6.addConstraint(Sketcher.Constraint("Symmetric", 1, 3, 3, 3, -2))
sketch6.addConstraint(Sketcher.Constraint("Symmetric", 0, 3, 4, 3, -2))
sketch6.addConstraint(Sketcher.Constraint("PointOnObject", 2, 3, -2))
sketch6.addConstraint(Sketcher.Constraint("Horizontal", 0, 3, 1, 3))
sketch6.addConstraint(Sketcher.Constraint("Horizontal", 1, 3, 2, 3))
sketch6.addConstraint(Sketcher.Constraint("Diameter", 0, Q("2.5 mm")))
sketch6.addConstraint(Sketcher.Constraint("DistanceX", 0, 3, -1, 1, Q("40 mm")))
sketch6.addConstraint(Sketcher.Constraint("DistanceY", 0, 3, -1, 1, Q("14 mm")))
sketch6.addConstraint(Sketcher.Constraint("DistanceX", 1, 3, -1, 1, Q("20 mm")))
sketch6.setExpression("Constraints[19]", "Params.sketch6_diameter")
pocket4 = body.newObject("PartDesign::Pocket", "Pocket003")
pocket4.Profile = sketch6
pocket4.Type = "ThroughAll"

doc.recompute()
